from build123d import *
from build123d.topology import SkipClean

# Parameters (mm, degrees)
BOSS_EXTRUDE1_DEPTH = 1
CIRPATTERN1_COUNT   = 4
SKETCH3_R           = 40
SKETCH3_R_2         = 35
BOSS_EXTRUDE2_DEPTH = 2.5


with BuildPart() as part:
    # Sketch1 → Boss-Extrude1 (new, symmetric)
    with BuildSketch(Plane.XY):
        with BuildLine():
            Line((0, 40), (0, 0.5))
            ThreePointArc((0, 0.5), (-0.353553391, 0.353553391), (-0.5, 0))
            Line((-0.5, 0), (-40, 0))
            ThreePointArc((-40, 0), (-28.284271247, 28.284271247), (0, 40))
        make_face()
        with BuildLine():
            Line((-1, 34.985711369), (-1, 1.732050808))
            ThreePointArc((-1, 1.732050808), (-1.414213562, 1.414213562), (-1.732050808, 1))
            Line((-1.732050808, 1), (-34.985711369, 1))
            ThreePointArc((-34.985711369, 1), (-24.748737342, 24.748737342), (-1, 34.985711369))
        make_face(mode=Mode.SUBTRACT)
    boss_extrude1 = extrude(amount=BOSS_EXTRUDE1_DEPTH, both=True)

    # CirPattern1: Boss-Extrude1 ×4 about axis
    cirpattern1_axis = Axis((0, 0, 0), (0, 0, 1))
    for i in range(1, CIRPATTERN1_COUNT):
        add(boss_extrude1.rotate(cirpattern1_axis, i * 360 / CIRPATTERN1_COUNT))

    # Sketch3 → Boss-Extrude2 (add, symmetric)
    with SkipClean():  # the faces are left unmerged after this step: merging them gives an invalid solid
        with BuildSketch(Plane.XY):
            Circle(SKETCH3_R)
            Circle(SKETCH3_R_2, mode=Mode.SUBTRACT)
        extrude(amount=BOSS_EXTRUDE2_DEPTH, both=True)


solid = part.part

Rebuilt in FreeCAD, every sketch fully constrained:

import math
import FreeCAD as App
import Part
import Sketcher
Q = App.Units.Quantity

doc = App.newDocument("Part")
body = doc.addObject("PartDesign::Body", "Body")

sketch1 = doc.addObject("Sketcher::SketchObject", "Sketch")
body.addObject(sketch1)
sketch1.AttachmentSupport = (doc.XY_Plane, [""])
sketch1.MapMode = "FlatFace"
sketch1.addGeometry([
    Part.LineSegment(App.Vector(0, 0.5, 0), App.Vector(0, 40, 0)),
    Part.ArcOfCircle(Part.Circle(App.Vector(0, 0, 0), App.Vector(0, 0, 1), 40), math.radians(90), math.radians(180)),
    Part.LineSegment(App.Vector(-40, 0, 0), App.Vector(-0.5, 0, 0)),
    Part.ArcOfCircle(Part.Circle(App.Vector(0, 0, 0), App.Vector(0, 0, 1), 0.5), math.radians(90), math.radians(180)),
    Part.LineSegment(App.Vector(-1, 34.99, 0), App.Vector(-1, 1.73, 0)),
    Part.ArcOfCircle(Part.Circle(App.Vector(0, 0, 0), App.Vector(0, 0, 1), 2), math.radians(120), math.radians(150)),
    Part.LineSegment(App.Vector(-1.73, 1, 0), App.Vector(-34.99, 1, 0)),
    Part.ArcOfCircle(Part.Circle(App.Vector(0, 0, 0), App.Vector(0, 0, 1), 35), math.radians(92), math.radians(178)),
], False)
sketch1.addConstraint([
    Sketcher.Constraint("Coincident", 0, 2, 1, 1),
    Sketcher.Constraint("Coincident", 1, 2, 2, 1),
    Sketcher.Constraint("Coincident", 2, 2, 3, 2),
    Sketcher.Constraint("Coincident", 3, 1, 0, 1),
    Sketcher.Constraint("Coincident", 4, 2, 5, 1),
    Sketcher.Constraint("Coincident", 5, 2, 6, 1),
    Sketcher.Constraint("Coincident", 6, 2, 7, 2),
    Sketcher.Constraint("Coincident", 7, 1, 4, 1),
    Sketcher.Constraint("Vertical", 0),
    Sketcher.Constraint("Horizontal", 2),
    Sketcher.Constraint("Vertical", 4),
    Sketcher.Constraint("Horizontal", 6),
    Sketcher.Constraint("Coincident", 1, 3, -1, 1),
    Sketcher.Constraint("Coincident", 3, 3, -1, 1),
    Sketcher.Constraint("Coincident", 5, 3, -1, 1),
    Sketcher.Constraint("Coincident", 7, 3, -1, 1),
    Sketcher.Constraint("PointOnObject", 0, 2, -2),
    Sketcher.Constraint("PointOnObject", 1, 2, -1),
    Sketcher.Constraint("Equal", 6, 4),
    Sketcher.Constraint("Radius", 1, Q("40 mm")),
    Sketcher.Constraint("Radius", 5, Q("2 mm")),
    Sketcher.Constraint("Radius", 7, Q("35 mm")),
    Sketcher.Constraint("Radius", 3, Q("0.5 mm")),
    Sketcher.Constraint("DistanceX", 4, 2, -1, 1, Q("1 mm")),
])
pad1 = doc.addObject("PartDesign::Pad", "Pad")
body.addObject(pad1)
pad1.Profile = sketch1
pad1.Length = 2
pad1.Midplane = True
doc.recompute()

polarpattern = doc.addObject("PartDesign::PolarPattern", "PolarPattern")
body.addObject(polarpattern)
polarpattern.Originals = [pad1]
polarpattern.Axis = (doc.Z_Axis, [""])
polarpattern.Angle = 360
polarpattern.Occurrences = 4
body.Tip = polarpattern

sketch2 = doc.addObject("Sketcher::SketchObject", "Sketch001")
body.addObject(sketch2)
sketch2.AttachmentSupport = (doc.XY_Plane, [""])
sketch2.MapMode = "FlatFace"
sketch2.addGeometry([
    Part.Circle(App.Vector(0, 0, 0), App.Vector(0, 0, 1), 40),
    Part.Circle(App.Vector(0, 0, 0), App.Vector(0, 0, 1), 35),
], False)
sketch2.addConstraint([
    Sketcher.Constraint("Coincident", 0, 3, -1, 1),
    Sketcher.Constraint("Coincident", 1, 3, -1, 1),
    Sketcher.Constraint("Diameter", 0, Q("80 mm")),
    Sketcher.Constraint("Diameter", 1, Q("70 mm")),
])
pad2 = doc.addObject("PartDesign::Pad", "Pad001")
body.addObject(pad2)
pad2.Profile = sketch2
pad2.Length = 5
pad2.Midplane = True

doc.recompute()
